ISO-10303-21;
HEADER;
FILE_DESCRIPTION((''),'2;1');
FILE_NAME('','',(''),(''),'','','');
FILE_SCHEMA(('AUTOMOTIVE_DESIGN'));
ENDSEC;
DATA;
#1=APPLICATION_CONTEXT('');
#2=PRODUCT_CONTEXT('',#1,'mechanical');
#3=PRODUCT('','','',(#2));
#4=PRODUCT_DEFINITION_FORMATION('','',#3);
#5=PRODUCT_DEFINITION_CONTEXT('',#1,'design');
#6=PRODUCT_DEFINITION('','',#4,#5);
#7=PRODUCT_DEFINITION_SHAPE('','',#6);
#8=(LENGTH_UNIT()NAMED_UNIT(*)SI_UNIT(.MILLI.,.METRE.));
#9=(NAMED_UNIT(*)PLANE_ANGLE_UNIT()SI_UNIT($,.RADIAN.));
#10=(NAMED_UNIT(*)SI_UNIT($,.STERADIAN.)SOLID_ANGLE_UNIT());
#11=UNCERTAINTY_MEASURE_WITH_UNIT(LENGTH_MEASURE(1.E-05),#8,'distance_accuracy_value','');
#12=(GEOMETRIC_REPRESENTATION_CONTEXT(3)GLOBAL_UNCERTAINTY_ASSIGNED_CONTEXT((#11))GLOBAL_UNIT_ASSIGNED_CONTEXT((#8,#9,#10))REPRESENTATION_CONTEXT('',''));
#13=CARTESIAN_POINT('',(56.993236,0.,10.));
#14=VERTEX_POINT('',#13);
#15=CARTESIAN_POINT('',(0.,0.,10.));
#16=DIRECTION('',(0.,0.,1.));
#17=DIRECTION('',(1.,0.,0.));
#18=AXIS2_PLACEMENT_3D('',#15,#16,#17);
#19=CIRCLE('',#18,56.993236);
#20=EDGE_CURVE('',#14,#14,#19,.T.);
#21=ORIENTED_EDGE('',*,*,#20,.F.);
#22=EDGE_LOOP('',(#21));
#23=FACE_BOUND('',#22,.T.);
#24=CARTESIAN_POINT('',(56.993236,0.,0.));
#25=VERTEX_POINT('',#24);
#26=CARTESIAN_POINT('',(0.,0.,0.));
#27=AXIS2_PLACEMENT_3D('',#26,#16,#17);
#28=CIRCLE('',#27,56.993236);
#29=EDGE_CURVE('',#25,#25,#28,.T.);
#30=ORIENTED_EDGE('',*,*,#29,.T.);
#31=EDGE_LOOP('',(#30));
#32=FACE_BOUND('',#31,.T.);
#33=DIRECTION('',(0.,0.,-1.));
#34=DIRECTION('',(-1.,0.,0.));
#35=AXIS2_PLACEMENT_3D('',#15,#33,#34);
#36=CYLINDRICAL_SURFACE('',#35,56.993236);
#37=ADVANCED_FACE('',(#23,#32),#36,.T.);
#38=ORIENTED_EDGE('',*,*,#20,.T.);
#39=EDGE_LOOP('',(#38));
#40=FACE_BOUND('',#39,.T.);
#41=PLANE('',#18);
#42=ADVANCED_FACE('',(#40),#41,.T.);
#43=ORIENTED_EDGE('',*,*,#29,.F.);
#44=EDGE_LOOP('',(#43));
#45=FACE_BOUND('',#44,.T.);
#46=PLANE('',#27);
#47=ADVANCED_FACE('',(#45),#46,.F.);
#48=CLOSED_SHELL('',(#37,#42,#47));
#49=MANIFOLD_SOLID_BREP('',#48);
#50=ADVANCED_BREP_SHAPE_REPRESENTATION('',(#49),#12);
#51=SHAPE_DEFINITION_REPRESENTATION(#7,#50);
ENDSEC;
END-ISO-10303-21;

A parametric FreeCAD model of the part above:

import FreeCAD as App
import Part
import Sketcher

V = App.Vector

doc = App.newDocument("Part")
body = doc.addObject("PartDesign::Body", "Body")

# Sketch on XY plane
sketch1 = body.newObject("Sketcher::SketchObject", "Sketch")
sketch1.AttachmentSupport = (doc.getObject("XY_Plane"), [""])
sketch1.MapMode = "FlatFace"
sketch1.addGeometry(Part.Circle(V(0, 0, 0), V(0, 0, 1), 57), False)
sketch1.addConstraint([
    Sketcher.Constraint("Coincident", 0, 3, -1, 1),
    Sketcher.Constraint("Diameter", 0, 113.986472),
])
pad1 = body.newObject("PartDesign::Pad", "Pad")
pad1.Profile = sketch1
pad1.Length = 10

doc.recompute()
